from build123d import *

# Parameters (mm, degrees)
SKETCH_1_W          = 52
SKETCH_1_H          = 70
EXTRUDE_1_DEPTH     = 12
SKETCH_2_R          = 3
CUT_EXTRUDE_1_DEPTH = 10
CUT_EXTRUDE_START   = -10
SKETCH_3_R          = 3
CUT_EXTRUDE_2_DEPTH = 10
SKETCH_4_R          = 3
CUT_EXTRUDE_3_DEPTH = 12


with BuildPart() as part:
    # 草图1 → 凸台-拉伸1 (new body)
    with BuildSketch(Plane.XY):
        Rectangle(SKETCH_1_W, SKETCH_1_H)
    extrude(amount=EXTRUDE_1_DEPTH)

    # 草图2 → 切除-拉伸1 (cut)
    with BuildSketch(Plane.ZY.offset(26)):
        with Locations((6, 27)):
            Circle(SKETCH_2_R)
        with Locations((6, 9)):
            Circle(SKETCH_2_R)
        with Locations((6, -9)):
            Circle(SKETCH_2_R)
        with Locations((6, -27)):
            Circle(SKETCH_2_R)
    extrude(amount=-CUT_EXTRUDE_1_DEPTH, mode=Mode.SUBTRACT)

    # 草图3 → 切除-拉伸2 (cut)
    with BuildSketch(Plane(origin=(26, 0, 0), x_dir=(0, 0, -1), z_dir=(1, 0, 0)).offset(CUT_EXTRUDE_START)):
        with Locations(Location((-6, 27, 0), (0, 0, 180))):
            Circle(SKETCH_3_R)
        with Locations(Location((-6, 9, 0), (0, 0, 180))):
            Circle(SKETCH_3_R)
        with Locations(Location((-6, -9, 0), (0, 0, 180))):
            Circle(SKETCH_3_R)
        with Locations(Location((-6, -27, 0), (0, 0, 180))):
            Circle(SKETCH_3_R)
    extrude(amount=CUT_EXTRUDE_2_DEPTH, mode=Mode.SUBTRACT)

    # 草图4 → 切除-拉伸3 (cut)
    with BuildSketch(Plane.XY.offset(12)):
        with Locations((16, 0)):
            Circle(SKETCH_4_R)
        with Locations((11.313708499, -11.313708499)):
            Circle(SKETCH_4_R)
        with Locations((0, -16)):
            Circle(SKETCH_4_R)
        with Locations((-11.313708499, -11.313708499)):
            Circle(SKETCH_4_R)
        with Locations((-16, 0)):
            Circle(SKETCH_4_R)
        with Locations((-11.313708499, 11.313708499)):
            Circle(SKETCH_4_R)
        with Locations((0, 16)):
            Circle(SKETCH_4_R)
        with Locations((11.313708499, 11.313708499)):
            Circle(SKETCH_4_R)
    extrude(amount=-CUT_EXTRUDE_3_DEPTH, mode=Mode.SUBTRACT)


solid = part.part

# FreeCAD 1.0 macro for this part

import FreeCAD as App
import Part
import Sketcher
from FreeCAD import Vector

doc = App.newDocument("Part")
body = doc.addObject("PartDesign::Body", "Body")

sketch1 = doc.addObject("Sketcher::SketchObject", "Sketch")
body.addObject(sketch1)
sketch1.AttachmentSupport = (doc.XY_Plane, [""])
sketch1.MapMode = "FlatFace"
sketch1.addGeometry(Part.LineSegment(Vector(-26, 35, 0), Vector(-26, -35, 0)), False)
sketch1.addGeometry(Part.LineSegment(Vector(-26, -35, 0), Vector(26, -35, 0)), False)
sketch1.addGeometry(Part.LineSegment(Vector(26, -35, 0), Vector(26, 35, 0)), False)
sketch1.addGeometry(Part.LineSegment(Vector(26, 35, 0), Vector(-26, 35, 0)), False)
sketch1.addConstraint(Sketcher.Constraint("Coincident", 0, 2, 1, 1))
sketch1.addConstraint(Sketcher.Constraint("Coincident", 1, 2, 2, 1))
sketch1.addConstraint(Sketcher.Constraint("Coincident", 2, 2, 3, 1))
sketch1.addConstraint(Sketcher.Constraint("Coincident", 3, 2, 0, 1))
sketch1.addConstraint(Sketcher.Constraint("Vertical", 0))
sketch1.addConstraint(Sketcher.Constraint("Horizontal", 1))
sketch1.addConstraint(Sketcher.Constraint("Vertical", 2))
sketch1.addConstraint(Sketcher.Constraint("Horizontal", 3))
sketch1.addConstraint(Sketcher.Constraint("Symmetric", 0, 2, 2, 2, -1, 1))
sketch1.addConstraint(Sketcher.Constraint("DistanceX", 1, 1, 1, 2, 52.0))
sketch1.addConstraint(Sketcher.Constraint("DistanceY", 0, 2, 0, 1, 70.0))
pad1 = doc.addObject("PartDesign::Pad", "Pad")
body.addObject(pad1)
pad1.Profile = sketch1
pad1.Length = 12

sketch2 = doc.addObject("Sketcher::SketchObject", "Sketch001")
body.addObject(sketch2)
sketch2.AttachmentSupport = (doc.YZ_Plane, [""])
sketch2.MapMode = "FlatFace"
sketch2.AttachmentOffset = App.Placement(Vector(0, 0, -26), App.Rotation())
sketch2.addGeometry(Part.Circle(Vector(27, 6, 0), Vector(0, 0, 1), 3), False)
sketch2.addGeometry(Part.Circle(Vector(9, 6, 0), Vector(0, 0, 1), 3), False)
sketch2.addGeometry(Part.Circle(Vector(-9, 6, 0), Vector(0, 0, 1), 3), False)
sketch2.addGeometry(Part.Circle(Vector(-27, 6, 0), Vector(0, 0, 1), 3), False)
sketch2.addConstraint(Sketcher.Constraint("Equal", 0, 1))
sketch2.addConstraint(Sketcher.Constraint("Equal", 1, 2))
sketch2.addConstraint(Sketcher.Constraint("Equal", 2, 3))
sketch2.addConstraint(Sketcher.Constraint("Symmetric", 1, 3, 2, 3, -2))
sketch2.addConstraint(Sketcher.Constraint("Symmetric", 0, 3, 3, 3, -2))
sketch2.addConstraint(Sketcher.Constraint("Horizontal", 0, 3, 1, 3))
sketch2.addConstraint(Sketcher.Constraint("Diameter", 0, 6.0))
sketch2.addConstraint(Sketcher.Constraint("DistanceX", -1, 1, 0, 3, 27.0))
sketch2.addConstraint(Sketcher.Constraint("DistanceY", -1, 1, 0, 3, 6.0))
sketch2.addConstraint(Sketcher.Constraint("DistanceX", -1, 1, 1, 3, 9.0))
pocket1 = doc.addObject("PartDesign::Pocket", "Pocket")
body.addObject(pocket1)
pocket1.Profile = sketch2
pocket1.Length = 10
pocket1.Reversed = True

sketch3 = doc.addObject("Sketcher::SketchObject", "Sketch002")
body.addObject(sketch3)
sketch3.AttachmentSupport = (doc.YZ_Plane, [""])
sketch3.MapMode = "FlatFace"
sketch3.AttachmentOffset = App.Placement(Vector(0, 0, 16), App.Rotation())
sketch3.addGeometry(Part.Circle(Vector(27, 6, 0), Vector(0, 0, 1), 3), False)
sketch3.addGeometry(Part.Circle(Vector(9, 6, 0), Vector(0, 0, 1), 3), False)
sketch3.addGeometry(Part.Circle(Vector(-9, 6, 0), Vector(0, 0, 1), 3), False)
sketch3.addGeometry(Part.Circle(Vector(-27, 6, 0), Vector(0, 0, 1), 3), False)
sketch3.addConstraint(Sketcher.Constraint("Equal", 0, 1))
sketch3.addConstraint(Sketcher.Constraint("Equal", 1, 2))
sketch3.addConstraint(Sketcher.Constraint("Equal", 2, 3))
sketch3.addConstraint(Sketcher.Constraint("Symmetric", 1, 3, 2, 3, -2))
sketch3.addConstraint(Sketcher.Constraint("Symmetric", 0, 3, 3, 3, -2))
sketch3.addConstraint(Sketcher.Constraint("Horizontal", 0, 3, 1, 3))
sketch3.addConstraint(Sketcher.Constraint("Diameter", 0, 6.0))
sketch3.addConstraint(Sketcher.Constraint("DistanceX", -1, 1, 0, 3, 27.0))
sketch3.addConstraint(Sketcher.Constraint("DistanceY", -1, 1, 0, 3, 6.0))
sketch3.addConstraint(Sketcher.Constraint("DistanceX", -1, 1, 1, 3, 9.0))
pocket2 = doc.addObject("PartDesign::Pocket", "Pocket001")
body.addObject(pocket2)
pocket2.Profile = sketch3
pocket2.Length = 10
pocket2.Reversed = True

sketch4 = doc.addObject("Sketcher::SketchObject", "Sketch003")
body.addObject(sketch4)
sketch4.AttachmentSupport = (doc.XY_Plane, [""])
sketch4.MapMode = "FlatFace"
sketch4.AttachmentOffset = App.Placement(Vector(0, 0, 12), App.Rotation())
sketch4.addGeometry(Part.Circle(Vector(16, 0, 0), Vector(0, 0, 1), 3), False)
sketch4.addGeometry(Part.Circle(Vector(11.3, -11.3, 0), Vector(0, 0, 1), 3), False)
sketch4.addGeometry(Part.Circle(Vector(0, -16, 0), Vector(0, 0, 1), 3), False)
sketch4.addGeometry(Part.Circle(Vector(-11.3, -11.3, 0), Vector(0, 0, 1), 3), False)
sketch4.addGeometry(Part.Circle(Vector(-16, 0, 0), Vector(0, 0, 1), 3), False)
sketch4.addGeometry(Part.Circle(Vector(-11.3, 11.3, 0), Vector(0, 0, 1), 3), False)
sketch4.addGeometry(Part.Circle(Vector(0, 16, 0), Vector(0, 0, 1), 3), False)
sketch4.addGeometry(Part.Circle(Vector(11.3, 11.3, 0), Vector(0, 0, 1), 3), False)
sketch4.addConstraint(Sketcher.Constraint("Equal", 0, 1))
sketch4.addConstraint(Sketcher.Constraint("Equal", 1, 2))
sketch4.addConstraint(Sketcher.Constraint("Equal", 2, 3))
sketch4.addConstraint(Sketcher.Constraint("Equal", 3, 4))
sketch4.addConstraint(Sketcher.Constraint("Equal", 4, 5))
sketch4.addConstraint(Sketcher.Constraint("Equal", 5, 6))
sketch4.addConstraint(Sketcher.Constraint("Equal", 6, 7))
sketch4.addConstraint(Sketcher.Constraint("Symmetric", 0, 3, 4, 3, -1, 1))
sketch4.addConstraint(Sketcher.Constraint("Symmetric", 1, 3, 5, 3, -1, 1))
sketch4.addConstraint(Sketcher.Constraint("Symmetric", 2, 3, 6, 3, -1, 1))
sketch4.addConstraint(Sketcher.Constraint("Symmetric", 3, 3, 7, 3, -1, 1))
sketch4.addConstraint(Sketcher.Constraint("Symmetric", 1, 3, 3, 3, -2))
sketch4.addConstraint(Sketcher.Constraint("PointOnObject", 0, 3, -1))
sketch4.addConstraint(Sketcher.Constraint("PointOnObject", 2, 3, -2))
sketch4.addConstraint(Sketcher.Constraint("Diameter", 0, 6.0))
sketch4.addConstraint(Sketcher.Constraint("DistanceX", -1, 1, 0, 3, 16.0))
sketch4.addConstraint(Sketcher.Constraint("DistanceY", 2, 3, -1, 1, 16.0))
sketch4.addConstraint(Sketcher.Constraint("DistanceX", -1, 1, 1, 3, 11.313708))
sketch4.addConstraint(Sketcher.Constraint("DistanceY", 1, 3, -1, 1, 11.313708))
pocket3 = doc.addObject("PartDesign::Pocket", "Pocket002")
body.addObject(pocket3)
pocket3.Profile = sketch4
pocket3.Length = 12

doc.recompute()
